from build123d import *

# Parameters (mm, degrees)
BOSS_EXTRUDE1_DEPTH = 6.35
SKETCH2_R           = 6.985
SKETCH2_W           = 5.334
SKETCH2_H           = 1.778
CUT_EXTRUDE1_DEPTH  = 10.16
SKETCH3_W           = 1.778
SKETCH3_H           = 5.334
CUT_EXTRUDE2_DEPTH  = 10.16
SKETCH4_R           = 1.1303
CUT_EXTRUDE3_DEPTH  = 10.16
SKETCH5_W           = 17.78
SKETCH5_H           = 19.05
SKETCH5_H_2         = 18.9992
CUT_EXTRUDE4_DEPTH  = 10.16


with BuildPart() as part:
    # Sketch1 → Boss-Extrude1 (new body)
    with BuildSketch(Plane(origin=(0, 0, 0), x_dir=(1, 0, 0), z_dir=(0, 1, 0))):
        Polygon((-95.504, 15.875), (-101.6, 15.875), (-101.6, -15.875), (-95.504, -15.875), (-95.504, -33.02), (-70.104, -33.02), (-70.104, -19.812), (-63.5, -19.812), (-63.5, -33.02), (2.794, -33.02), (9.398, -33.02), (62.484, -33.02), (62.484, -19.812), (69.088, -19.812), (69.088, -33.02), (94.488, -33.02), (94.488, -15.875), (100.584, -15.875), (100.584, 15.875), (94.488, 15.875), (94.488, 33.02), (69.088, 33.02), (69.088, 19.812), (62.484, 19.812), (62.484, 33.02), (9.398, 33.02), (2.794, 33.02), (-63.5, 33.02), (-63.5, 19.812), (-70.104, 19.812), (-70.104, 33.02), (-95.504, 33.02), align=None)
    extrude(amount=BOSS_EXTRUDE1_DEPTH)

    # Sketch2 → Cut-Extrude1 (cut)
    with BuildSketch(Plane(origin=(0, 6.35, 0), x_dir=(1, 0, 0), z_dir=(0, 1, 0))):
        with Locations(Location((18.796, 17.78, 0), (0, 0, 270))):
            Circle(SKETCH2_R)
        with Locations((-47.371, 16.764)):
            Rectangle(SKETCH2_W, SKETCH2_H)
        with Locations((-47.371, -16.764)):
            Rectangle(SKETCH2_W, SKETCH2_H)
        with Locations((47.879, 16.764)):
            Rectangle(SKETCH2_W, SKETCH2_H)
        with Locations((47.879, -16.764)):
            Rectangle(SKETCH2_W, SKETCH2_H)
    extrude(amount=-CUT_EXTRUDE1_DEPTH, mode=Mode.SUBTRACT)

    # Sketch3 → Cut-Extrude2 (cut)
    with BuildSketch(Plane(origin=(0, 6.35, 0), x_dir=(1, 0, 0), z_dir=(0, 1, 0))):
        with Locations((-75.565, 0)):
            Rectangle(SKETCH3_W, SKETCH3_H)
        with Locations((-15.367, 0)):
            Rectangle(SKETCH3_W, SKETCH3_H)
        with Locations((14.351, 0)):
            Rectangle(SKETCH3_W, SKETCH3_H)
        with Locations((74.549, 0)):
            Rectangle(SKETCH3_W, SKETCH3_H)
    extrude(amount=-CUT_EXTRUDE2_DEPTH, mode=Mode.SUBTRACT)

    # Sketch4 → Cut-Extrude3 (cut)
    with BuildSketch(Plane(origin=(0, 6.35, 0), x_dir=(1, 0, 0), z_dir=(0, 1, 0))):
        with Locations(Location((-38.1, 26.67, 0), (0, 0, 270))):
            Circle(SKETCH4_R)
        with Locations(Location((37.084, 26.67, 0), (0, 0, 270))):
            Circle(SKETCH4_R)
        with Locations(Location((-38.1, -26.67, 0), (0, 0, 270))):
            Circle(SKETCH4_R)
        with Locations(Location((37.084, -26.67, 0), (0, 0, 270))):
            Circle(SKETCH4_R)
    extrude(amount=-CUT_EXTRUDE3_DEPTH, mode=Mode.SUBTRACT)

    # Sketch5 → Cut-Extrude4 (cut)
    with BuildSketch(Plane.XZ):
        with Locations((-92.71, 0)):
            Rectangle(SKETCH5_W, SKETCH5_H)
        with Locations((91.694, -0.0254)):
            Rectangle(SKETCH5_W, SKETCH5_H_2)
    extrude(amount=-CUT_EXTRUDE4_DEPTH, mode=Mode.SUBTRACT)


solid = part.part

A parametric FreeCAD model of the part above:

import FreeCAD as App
import Part
import Sketcher
from FreeCAD import Vector
Q = App.Units.Quantity


def add_polygon(sketch, points):
    """Adds a closed chain of lines whose ends are joined by coincident constraints."""
    first, n = sketch.GeometryCount, len(points)
    for a, b in zip(points, points[1:] + points[:1]):
        sketch.addGeometry(Part.LineSegment(App.Vector(*a, 0), App.Vector(*b, 0)), False)
    for i in range(n):
        sketch.addConstraint(Sketcher.Constraint("Coincident", first + i, 2, first + (i + 1) % n, 1))

doc = App.newDocument("Part")
body = doc.addObject("PartDesign::Body", "Body")

# Sketch on XZ plane
sketch1 = doc.addObject("Sketcher::SketchObject", "Sketch")
body.addObject(sketch1)
sketch1.AttachmentSupport = (doc.XZ_Plane, [""])
sketch1.MapMode = "FlatFace"
add_polygon(sketch1, [(-96, -16), (-102, -16), (-102, 16), (-96, 16), (-96, 33), (-70, 33), (-70, 20), (-64, 20), (-64, 33), (62, 33), (62, 20), (69, 20), (69, 33), (94, 33), (94, 16), (101, 16), (101, -16), (94, -16), (94, -33), (69, -33), (69, -20), (62, -20), (62, -33), (-64, -33), (-64, -20), (-70, -20), (-70, -33), (-96, -33)])  # lines 0-27
sketch1.addConstraint([
    Sketcher.Constraint("Horizontal", 0),
    Sketcher.Constraint("Vertical", 1),
    Sketcher.Constraint("Horizontal", 2),
    Sketcher.Constraint("Vertical", 3),
    Sketcher.Constraint("Horizontal", 4),
    Sketcher.Constraint("Vertical", 5),
    Sketcher.Constraint("Horizontal", 6),
    Sketcher.Constraint("Vertical", 7),
    Sketcher.Constraint("Horizontal", 8),
    Sketcher.Constraint("Vertical", 9),
    Sketcher.Constraint("Horizontal", 10),
    Sketcher.Constraint("Vertical", 11),
    Sketcher.Constraint("Horizontal", 12),
    Sketcher.Constraint("Vertical", 13),
    Sketcher.Constraint("Horizontal", 14),
    Sketcher.Constraint("Vertical", 15),
    Sketcher.Constraint("Horizontal", 16),
    Sketcher.Constraint("Vertical", 17),
    Sketcher.Constraint("Horizontal", 18),
    Sketcher.Constraint("Vertical", 19),
    Sketcher.Constraint("Horizontal", 20),
    Sketcher.Constraint("Vertical", 21),
    Sketcher.Constraint("Horizontal", 22),
    Sketcher.Constraint("Vertical", 23),
    Sketcher.Constraint("Horizontal", 24),
    Sketcher.Constraint("Vertical", 25),
    Sketcher.Constraint("Horizontal", 26),
    Sketcher.Constraint("Vertical", 27),
    Sketcher.Constraint("Symmetric", 13, 2, 16, 2, -1),
    Sketcher.Constraint("Symmetric", 11, 2, 18, 2, -1),
    Sketcher.Constraint("Symmetric", 9, 2, 20, 2, -1),
    Sketcher.Constraint("Symmetric", 7, 2, 22, 2, -1),
    Sketcher.Constraint("Symmetric", 5, 2, 24, 2, -1),
    Sketcher.Constraint("Symmetric", 3, 2, 26, 2, -1),
    Sketcher.Constraint("Horizontal", 4, 2, 7, 2),
    Sketcher.Constraint("Horizontal", 6, 2, 9, 2),
    Sketcher.Constraint("Horizontal", 8, 2, 11, 2),
    Sketcher.Constraint("Horizontal", 2, 2, 13, 2),
    Sketcher.Constraint("Horizontal", 0, 2, 15, 2),
    Sketcher.Constraint("Equal", 6, 10),
    Sketcher.Constraint("Equal", 4, 12),
    Sketcher.Constraint("Equal", 2, 14),
    Sketcher.Constraint("DistanceX", 4, 1, 4, 2, Q("1 in")),
    Sketcher.Constraint("DistanceX", 0, 2, -1, 1, Q("4 in")),
    Sketcher.Constraint("DistanceX", 0, 2, 0, 1, Q("0.24 in")),
    Sketcher.Constraint("DistanceX", 6, 1, 6, 2, Q("0.26 in")),
    Sketcher.Constraint("DistanceX", 8, 1, 8, 2, Q("4.96 in")),
    Sketcher.Constraint("DistanceY", 1, 1, 1, 2, Q("1.25 in")),
    Sketcher.Constraint("DistanceY", 5, 2, 5, 1, Q("0.52 in")),
    Sketcher.Constraint("DistanceY", -1, 1, 3, 2, Q("1.3 in")),
])
pad1 = doc.addObject("PartDesign::Pad", "Pad")
body.addObject(pad1)
pad1.Profile = sketch1
pad1.Length = Q("0.25 in")
pad1.Reversed = True

# Sketch on XZ plane
sketch2 = doc.addObject("Sketcher::SketchObject", "Sketch001")
body.addObject(sketch2)
sketch2.AttachmentSupport = (doc.XZ_Plane, [""])
sketch2.MapMode = "FlatFace"
sketch2.AttachmentOffset = App.Placement(Vector(0, 0, -0.25 * 25.4), App.Rotation())
sketch2.addGeometry(Part.Circle(Vector(18.8, -17.8, 0), Vector(0, 0, 1), 7), False)  # 0
add_polygon(sketch2, [(-50, -17.7), (-50, -15.9), (-44.7, -15.9), (-44.7, -17.7)])  # lines 1-4
add_polygon(sketch2, [(-50, 15.9), (-50, 17.7), (-44.7, 17.7), (-44.7, 15.9)])  # lines 5-8
add_polygon(sketch2, [(45.2, -17.7), (45.2, -15.9), (50.5, -15.9), (50.5, -17.7)])  # lines 9-12
add_polygon(sketch2, [(45.2, 15.9), (45.2, 17.7), (50.5, 17.7), (50.5, 15.9)])  # lines 13-16
sketch2.addConstraint([
    Sketcher.Constraint("Vertical", 1),
    Sketcher.Constraint("Horizontal", 2),
    Sketcher.Constraint("Vertical", 3),
    Sketcher.Constraint("Horizontal", 4),
    Sketcher.Constraint("Vertical", 5),
    Sketcher.Constraint("Horizontal", 6),
    Sketcher.Constraint("Vertical", 7),
    Sketcher.Constraint("Horizontal", 8),
    Sketcher.Constraint("Vertical", 9),
    Sketcher.Constraint("Horizontal", 10),
    Sketcher.Constraint("Vertical", 11),
    Sketcher.Constraint("Horizontal", 12),
    Sketcher.Constraint("Vertical", 13),
    Sketcher.Constraint("Horizontal", 14),
    Sketcher.Constraint("Vertical", 15),
    Sketcher.Constraint("Horizontal", 16),
    Sketcher.Constraint("Symmetric", 4, 2, 5, 2, -1),
    Sketcher.Constraint("Symmetric", 2, 2, 7, 2, -1),
    Sketcher.Constraint("Symmetric", 12, 2, 13, 2, -1),
    Sketcher.Constraint("Symmetric", 10, 2, 15, 2, -1),
    Sketcher.Constraint("Horizontal", 2, 2, 9, 2),
    Sketcher.Constraint("Horizontal", 4, 2, 11, 2),
    Sketcher.Constraint("Equal", 8, 10),
    Sketcher.Constraint("Diameter", 0, Q("0.55 in")),
    Sketcher.Constraint("DistanceX", 2, 1, 2, 2, Q("0.21 in")),
    Sketcher.Constraint("DistanceY", 1, 1, 1, 2, Q("0.07 in")),
    Sketcher.Constraint("DistanceY", 0, 3, -1, 1, Q("0.7 in")),
    Sketcher.Constraint("DistanceX", 2, 2, 0, 3, Q("2.5 in")),
    Sketcher.Constraint("DistanceX", -1, 1, 0, 3, Q("0.74 in")),
    Sketcher.Constraint("DistanceX", -1, 1, 9, 2, Q("1.78 in")),
    Sketcher.Constraint("DistanceY", 1, 2, 5, 2, Q("1.32 in")),
])
pocket1 = doc.addObject("PartDesign::Pocket", "Pocket")
body.addObject(pocket1)
pocket1.Profile = sketch2
pocket1.Length = Q("0.4 in")
pocket1.Reversed = True

# Sketch on XZ plane
sketch3 = doc.addObject("Sketcher::SketchObject", "Sketch002")
body.addObject(sketch3)
sketch3.AttachmentSupport = (doc.XZ_Plane, [""])
sketch3.MapMode = "FlatFace"
sketch3.AttachmentOffset = App.Placement(Vector(0, 0, -0.25 * 25.4), App.Rotation())
add_polygon(sketch3, [(-76.5, -2.7), (-76.5, 2.7), (-74.7, 2.7), (-74.7, -2.7)])  # lines 0-3
add_polygon(sketch3, [(-16.3, -2.7), (-16.3, 2.7), (-14.5, 2.7), (-14.5, -2.7)])  # lines 4-7
add_polygon(sketch3, [(13.5, -2.7), (13.5, 2.7), (15.2, 2.7), (15.2, -2.7)])  # lines 8-11
add_polygon(sketch3, [(73.7, -2.7), (73.7, 2.7), (75.4, 2.7), (75.4, -2.7)])  # lines 12-15
sketch3.addConstraint([
    Sketcher.Constraint("Vertical", 0),
    Sketcher.Constraint("Horizontal", 1),
    Sketcher.Constraint("Vertical", 2),
    Sketcher.Constraint("Horizontal", 3),
    Sketcher.Constraint("Vertical", 4),
    Sketcher.Constraint("Horizontal", 5),
    Sketcher.Constraint("Vertical", 6),
    Sketcher.Constraint("Horizontal", 7),
    Sketcher.Constraint("Vertical", 8),
    Sketcher.Constraint("Horizontal", 9),
    Sketcher.Constraint("Vertical", 10),
    Sketcher.Constraint("Horizontal", 11),
    Sketcher.Constraint("Vertical", 12),
    Sketcher.Constraint("Horizontal", 13),
    Sketcher.Constraint("Vertical", 14),
    Sketcher.Constraint("Horizontal", 15),
    Sketcher.Constraint("Horizontal", 1, 2, 4, 2),
    Sketcher.Constraint("Horizontal", 3, 2, 6, 2),
    Sketcher.Constraint("Horizontal", 5, 2, 8, 2),
    Sketcher.Constraint("Horizontal", 7, 2, 10, 2),
    Sketcher.Constraint("Horizontal", 9, 2, 12, 2),
    Sketcher.Constraint("Horizontal", 11, 2, 14, 2),
    Sketcher.Constraint("Equal", 3, 5),
    Sketcher.Constraint("Equal", 7, 9),
    Sketcher.Constraint("Equal", 11, 13),
    Sketcher.Constraint("DistanceX", 1, 1, 1, 2, Q("0.07 in")),
    Sketcher.Constraint("DistanceY", 0, 1, 0, 2, Q("0.21 in")),
    Sketcher.Constraint("DistanceX", -1, 1, 9, 2, Q("0.6 in")),
    Sketcher.Constraint("DistanceX", -1, 1, 12, 2, Q("2.9 in")),
    Sketcher.Constraint("DistanceX", 1, 2, 4, 2, Q("2.3 in")),
    Sketcher.Constraint("DistanceX", 5, 2, 8, 2, Q("1.1 in")),
    Sketcher.Constraint("DistanceY", -1, 1, 0, 2, Q("0.105 in")),
])
pocket2 = doc.addObject("PartDesign::Pocket", "Pocket001")
body.addObject(pocket2)
pocket2.Profile = sketch3
pocket2.Length = Q("0.4 in")
pocket2.Reversed = True

# Sketch on XZ plane
sketch4 = doc.addObject("Sketcher::SketchObject", "Sketch003")
body.addObject(sketch4)
sketch4.AttachmentSupport = (doc.XZ_Plane, [""])
sketch4.MapMode = "FlatFace"
sketch4.AttachmentOffset = App.Placement(Vector(0, 0, -0.25 * 25.4), App.Rotation())
sketch4.addGeometry([
    Part.Circle(Vector(-38.1, -26.7, 0), Vector(0, 0, 1), 1.1),
    Part.Circle(Vector(37.1, -26.7, 0), Vector(0, 0, 1), 1.1),
    Part.Circle(Vector(-38.1, 26.7, 0), Vector(0, 0, 1), 1.1),
    Part.Circle(Vector(37.1, 26.7, 0), Vector(0, 0, 1), 1.1),
], False)
sketch4.addConstraint([
    Sketcher.Constraint("Equal", 0, 1),
    Sketcher.Constraint("Equal", 1, 2),
    Sketcher.Constraint("Equal", 2, 3),
    Sketcher.Constraint("Symmetric", 0, 3, 2, 3, -1),
    Sketcher.Constraint("Symmetric", 1, 3, 3, 3, -1),
    Sketcher.Constraint("Horizontal", 0, 3, 1, 3),
    Sketcher.Constraint("Diameter", 0, Q("0.089 in")),
    Sketcher.Constraint("DistanceX", 0, 3, -1, 1, Q("1.5 in")),
    Sketcher.Constraint("DistanceY", 0, 3, 2, 3, Q("2.1 in")),
    Sketcher.Constraint("DistanceX", -1, 1, 1, 3, Q("1.46 in")),
])
pocket3 = doc.addObject("PartDesign::Pocket", "Pocket002")
body.addObject(pocket3)
pocket3.Profile = sketch4
pocket3.Length = Q("0.4 in")
pocket3.Reversed = True

# Sketch on XZ plane
sketch5 = doc.addObject("Sketcher::SketchObject", "Sketch004")
body.addObject(sketch5)
sketch5.AttachmentSupport = (doc.XZ_Plane, [""])
sketch5.MapMode = "FlatFace"
add_polygon(sketch5, [(-102, 10), (-102, -10), (-84, -10), (-84, 10)])  # lines 0-3
add_polygon(sketch5, [(83, 9), (83, -10), (101, -10), (101, 9)])  # lines 4-7
sketch5.addConstraint([
    Sketcher.Constraint("Vertical", 0),
    Sketcher.Constraint("Horizontal", 1),
    Sketcher.Constraint("Vertical", 2),
    Sketcher.Constraint("Horizontal", 3),
    Sketcher.Constraint("Vertical", 4),
    Sketcher.Constraint("Horizontal", 5),
    Sketcher.Constraint("Vertical", 6),
    Sketcher.Constraint("Horizontal", 7),
    Sketcher.Constraint("Horizontal", 1, 2, 4, 2),
    Sketcher.Constraint("Equal", 3, 5),
    Sketcher.Constraint("DistanceX", 1, 1, 1, 2, Q("0.7 in")),
    Sketcher.Constraint("DistanceX", 0, 2, -1, 1, Q("4 in")),
    Sketcher.Constraint("DistanceY", 0, 2, 0, 1, Q("0.75 in")),
    Sketcher.Constraint("DistanceY", 4, 2, 4, 1, Q("0.748 in")),
    Sketcher.Constraint("DistanceX", -1, 1, 4, 2, Q("3.26 in")),
    Sketcher.Constraint("DistanceY", 0, 2, -1, 1, Q("0.375 in")),
])
pocket4 = doc.addObject("PartDesign::Pocket", "Pocket003")
body.addObject(pocket4)
pocket4.Profile = sketch5
pocket4.Length = Q("0.4 in")

doc.recompute()
